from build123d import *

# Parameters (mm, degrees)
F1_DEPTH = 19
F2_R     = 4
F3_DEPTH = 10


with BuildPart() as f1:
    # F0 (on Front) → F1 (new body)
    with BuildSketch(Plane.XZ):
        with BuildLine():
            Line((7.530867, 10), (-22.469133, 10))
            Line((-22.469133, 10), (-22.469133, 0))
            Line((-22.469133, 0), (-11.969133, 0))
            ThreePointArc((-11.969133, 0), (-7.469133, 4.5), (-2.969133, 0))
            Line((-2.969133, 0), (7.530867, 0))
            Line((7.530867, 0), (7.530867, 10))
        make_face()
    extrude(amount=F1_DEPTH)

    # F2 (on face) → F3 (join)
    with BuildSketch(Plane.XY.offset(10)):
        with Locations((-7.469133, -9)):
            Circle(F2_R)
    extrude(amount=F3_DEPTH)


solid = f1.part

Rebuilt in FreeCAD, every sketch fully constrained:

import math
import FreeCAD as App
import Part
import Sketcher

doc = App.newDocument("Part")
body = doc.addObject("PartDesign::Body", "Body")

sketch1 = doc.addObject("Sketcher::SketchObject", "Sketch")
body.addObject(sketch1)
sketch1.AttachmentSupport = (doc.XZ_Plane, [""])
sketch1.MapMode = "FlatFace"
sketch1.addGeometry([
    Part.LineSegment(App.Vector(7.5, 10, 0), App.Vector(-22.5, 10, 0)),
    Part.LineSegment(App.Vector(-22.5, 10, 0), App.Vector(-22.5, 0, 0)),
    Part.LineSegment(App.Vector(-22.5, 0, 0), App.Vector(-12, 0, 0)),
    Part.ArcOfCircle(Part.Circle(App.Vector(-7.5, 0, 0), App.Vector(0, 0, 1), 4.5), math.radians(0), math.radians(180)),
    Part.LineSegment(App.Vector(-3, 0, 0), App.Vector(7.5, 0, 0)),
    Part.LineSegment(App.Vector(7.5, 0, 0), App.Vector(7.5, 10, 0)),
], False)
sketch1.addConstraint([
    Sketcher.Constraint("Coincident", 0, 2, 1, 1),
    Sketcher.Constraint("Coincident", 1, 2, 2, 1),
    Sketcher.Constraint("Coincident", 2, 2, 3, 2),
    Sketcher.Constraint("Coincident", 3, 1, 4, 1),
    Sketcher.Constraint("Coincident", 4, 2, 5, 1),
    Sketcher.Constraint("Coincident", 5, 2, 0, 1),
    Sketcher.Constraint("Horizontal", 0),
    Sketcher.Constraint("Vertical", 1),
    Sketcher.Constraint("Horizontal", 2),
    Sketcher.Constraint("Horizontal", 4),
    Sketcher.Constraint("Vertical", 5),
    Sketcher.Constraint("PointOnObject", 3, 3, -1),
    Sketcher.Constraint("PointOnObject", 1, 2, -1),
    Sketcher.Constraint("PointOnObject", 3, 1, -1),
    Sketcher.Constraint("Equal", 2, 4),
    Sketcher.Constraint("Radius", 3, 4.5),
    Sketcher.Constraint("DistanceX", 0, 2, 0, 1, 30.0),
    Sketcher.Constraint("DistanceY", 1, 2, 1, 1, 10.0),
    Sketcher.Constraint("DistanceX", 3, 3, -1, 1, 7.469133),
])
pad1 = doc.addObject("PartDesign::Pad", "Pad")
body.addObject(pad1)
pad1.Profile = sketch1
pad1.Length = 19

sketch2 = doc.addObject("Sketcher::SketchObject", "Sketch001")
body.addObject(sketch2)
sketch2.AttachmentSupport = (doc.XY_Plane, [""])
sketch2.MapMode = "FlatFace"
sketch2.AttachmentOffset = App.Placement(App.Vector(0, 0, 10), App.Rotation())
sketch2.addGeometry(Part.Circle(App.Vector(-7.5, -9, 0), App.Vector(0, 0, 1), 4), False)
sketch2.addConstraint([
    Sketcher.Constraint("Diameter", 0, 8.0),
    Sketcher.Constraint("DistanceY", 0, 3, -1, 1, 9.0),
    Sketcher.Constraint("DistanceX", 0, 3, -1, 1, 7.469133),
])
pad2 = doc.addObject("PartDesign::Pad", "Pad001")
body.addObject(pad2)
pad2.Profile = sketch2
pad2.Length = 10

doc.recompute()
